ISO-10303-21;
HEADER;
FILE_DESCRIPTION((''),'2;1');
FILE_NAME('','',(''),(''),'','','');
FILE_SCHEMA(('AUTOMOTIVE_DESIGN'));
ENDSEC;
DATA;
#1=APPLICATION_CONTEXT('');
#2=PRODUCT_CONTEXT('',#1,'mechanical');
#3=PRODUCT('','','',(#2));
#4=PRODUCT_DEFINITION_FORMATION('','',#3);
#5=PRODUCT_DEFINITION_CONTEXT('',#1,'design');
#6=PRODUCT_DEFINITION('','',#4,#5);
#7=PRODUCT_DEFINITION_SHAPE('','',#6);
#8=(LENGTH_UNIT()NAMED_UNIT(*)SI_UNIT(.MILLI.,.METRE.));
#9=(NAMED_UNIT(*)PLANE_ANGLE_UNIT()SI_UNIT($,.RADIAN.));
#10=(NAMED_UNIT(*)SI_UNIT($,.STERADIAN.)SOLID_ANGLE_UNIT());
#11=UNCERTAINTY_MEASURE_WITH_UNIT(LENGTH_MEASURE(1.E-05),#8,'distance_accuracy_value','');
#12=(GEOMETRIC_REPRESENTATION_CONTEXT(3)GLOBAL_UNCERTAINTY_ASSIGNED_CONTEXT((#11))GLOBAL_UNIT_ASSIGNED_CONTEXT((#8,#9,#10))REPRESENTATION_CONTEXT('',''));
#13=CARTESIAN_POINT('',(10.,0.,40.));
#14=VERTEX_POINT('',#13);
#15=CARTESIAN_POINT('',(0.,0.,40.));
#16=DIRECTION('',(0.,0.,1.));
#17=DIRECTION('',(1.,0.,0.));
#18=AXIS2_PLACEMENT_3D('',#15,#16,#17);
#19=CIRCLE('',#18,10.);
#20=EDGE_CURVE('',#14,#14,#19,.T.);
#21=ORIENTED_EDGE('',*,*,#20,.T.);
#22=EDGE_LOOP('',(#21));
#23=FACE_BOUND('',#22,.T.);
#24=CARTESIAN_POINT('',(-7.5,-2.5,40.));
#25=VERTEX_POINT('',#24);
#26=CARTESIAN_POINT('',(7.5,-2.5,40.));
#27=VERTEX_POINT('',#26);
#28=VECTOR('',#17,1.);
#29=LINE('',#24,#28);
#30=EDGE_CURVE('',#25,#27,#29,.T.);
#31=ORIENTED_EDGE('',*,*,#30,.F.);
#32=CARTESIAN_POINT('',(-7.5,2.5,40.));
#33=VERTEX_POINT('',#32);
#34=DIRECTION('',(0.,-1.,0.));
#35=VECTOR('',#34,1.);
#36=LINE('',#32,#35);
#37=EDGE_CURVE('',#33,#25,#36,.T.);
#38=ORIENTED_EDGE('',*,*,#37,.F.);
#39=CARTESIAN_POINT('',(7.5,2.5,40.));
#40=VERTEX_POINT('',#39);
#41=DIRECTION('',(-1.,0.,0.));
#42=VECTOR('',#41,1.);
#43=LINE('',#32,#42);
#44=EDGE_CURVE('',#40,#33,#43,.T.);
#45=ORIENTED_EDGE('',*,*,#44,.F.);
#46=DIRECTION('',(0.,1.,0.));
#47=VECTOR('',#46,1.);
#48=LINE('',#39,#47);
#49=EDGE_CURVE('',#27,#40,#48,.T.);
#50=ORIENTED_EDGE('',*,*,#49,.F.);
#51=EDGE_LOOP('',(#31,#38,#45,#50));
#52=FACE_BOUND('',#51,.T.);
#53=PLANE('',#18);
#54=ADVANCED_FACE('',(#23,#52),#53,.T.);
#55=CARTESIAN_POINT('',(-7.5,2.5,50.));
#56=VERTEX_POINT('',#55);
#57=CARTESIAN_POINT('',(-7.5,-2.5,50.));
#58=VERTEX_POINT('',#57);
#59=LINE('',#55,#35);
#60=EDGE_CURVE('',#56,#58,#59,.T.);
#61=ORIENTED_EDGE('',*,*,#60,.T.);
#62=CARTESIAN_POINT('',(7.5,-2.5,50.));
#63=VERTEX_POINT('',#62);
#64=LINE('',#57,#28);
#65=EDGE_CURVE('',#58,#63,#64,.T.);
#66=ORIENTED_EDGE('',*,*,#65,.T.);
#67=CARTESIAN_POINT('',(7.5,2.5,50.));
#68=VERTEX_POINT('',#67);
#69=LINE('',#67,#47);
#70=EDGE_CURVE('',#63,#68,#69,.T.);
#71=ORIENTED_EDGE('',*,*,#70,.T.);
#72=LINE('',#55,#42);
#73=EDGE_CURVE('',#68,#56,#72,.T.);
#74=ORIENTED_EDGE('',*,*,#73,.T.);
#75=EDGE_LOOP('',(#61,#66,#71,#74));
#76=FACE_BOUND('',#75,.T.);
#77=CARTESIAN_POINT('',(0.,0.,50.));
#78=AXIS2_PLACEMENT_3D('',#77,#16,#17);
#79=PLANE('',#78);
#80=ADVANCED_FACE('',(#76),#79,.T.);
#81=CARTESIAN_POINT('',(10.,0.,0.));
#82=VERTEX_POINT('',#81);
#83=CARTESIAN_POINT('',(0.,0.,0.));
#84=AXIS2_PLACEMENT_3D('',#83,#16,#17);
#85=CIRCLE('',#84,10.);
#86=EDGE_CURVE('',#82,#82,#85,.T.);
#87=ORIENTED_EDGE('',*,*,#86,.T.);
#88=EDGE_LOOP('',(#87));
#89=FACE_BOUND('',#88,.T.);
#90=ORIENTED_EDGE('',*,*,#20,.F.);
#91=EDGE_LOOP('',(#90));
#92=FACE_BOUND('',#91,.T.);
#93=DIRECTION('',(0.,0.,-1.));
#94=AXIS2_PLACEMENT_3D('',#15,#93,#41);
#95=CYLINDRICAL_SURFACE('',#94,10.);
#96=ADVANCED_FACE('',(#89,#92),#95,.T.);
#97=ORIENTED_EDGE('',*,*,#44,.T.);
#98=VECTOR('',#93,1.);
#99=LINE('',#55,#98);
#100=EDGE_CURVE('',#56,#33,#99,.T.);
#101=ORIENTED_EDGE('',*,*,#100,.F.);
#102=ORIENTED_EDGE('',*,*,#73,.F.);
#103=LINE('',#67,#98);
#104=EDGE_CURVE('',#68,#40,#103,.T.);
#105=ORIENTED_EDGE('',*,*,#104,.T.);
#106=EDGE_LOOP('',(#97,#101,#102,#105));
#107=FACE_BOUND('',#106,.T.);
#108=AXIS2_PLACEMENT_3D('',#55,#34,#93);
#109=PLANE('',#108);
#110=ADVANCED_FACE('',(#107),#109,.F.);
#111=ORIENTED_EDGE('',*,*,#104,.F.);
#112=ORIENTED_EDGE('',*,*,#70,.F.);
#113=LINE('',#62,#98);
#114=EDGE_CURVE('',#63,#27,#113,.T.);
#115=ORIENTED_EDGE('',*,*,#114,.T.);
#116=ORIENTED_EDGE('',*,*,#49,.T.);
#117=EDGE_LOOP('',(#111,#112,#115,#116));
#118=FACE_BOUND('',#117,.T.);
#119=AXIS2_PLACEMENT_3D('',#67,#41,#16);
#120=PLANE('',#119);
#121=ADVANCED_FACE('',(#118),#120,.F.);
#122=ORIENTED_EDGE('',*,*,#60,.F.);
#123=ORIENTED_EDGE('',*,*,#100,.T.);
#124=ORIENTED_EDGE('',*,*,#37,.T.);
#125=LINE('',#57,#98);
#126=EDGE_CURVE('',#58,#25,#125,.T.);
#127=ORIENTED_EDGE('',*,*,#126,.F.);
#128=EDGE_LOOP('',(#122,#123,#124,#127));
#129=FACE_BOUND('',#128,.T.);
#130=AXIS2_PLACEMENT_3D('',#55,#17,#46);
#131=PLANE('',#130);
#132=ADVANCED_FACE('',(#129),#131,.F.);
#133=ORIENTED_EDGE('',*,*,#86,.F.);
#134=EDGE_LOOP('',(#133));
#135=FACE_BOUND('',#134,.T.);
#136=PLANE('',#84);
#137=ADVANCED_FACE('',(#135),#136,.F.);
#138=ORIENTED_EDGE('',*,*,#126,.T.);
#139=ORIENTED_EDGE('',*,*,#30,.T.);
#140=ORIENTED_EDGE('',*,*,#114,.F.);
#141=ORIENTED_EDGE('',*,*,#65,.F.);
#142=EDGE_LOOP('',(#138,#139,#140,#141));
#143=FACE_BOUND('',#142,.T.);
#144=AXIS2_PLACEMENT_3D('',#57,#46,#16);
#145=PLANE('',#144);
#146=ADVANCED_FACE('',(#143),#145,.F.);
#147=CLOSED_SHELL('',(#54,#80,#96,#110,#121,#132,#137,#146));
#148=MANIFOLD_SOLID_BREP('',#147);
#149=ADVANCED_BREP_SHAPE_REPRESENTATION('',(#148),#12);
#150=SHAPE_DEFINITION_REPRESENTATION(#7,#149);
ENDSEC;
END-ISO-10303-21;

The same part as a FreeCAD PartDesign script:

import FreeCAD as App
import Part
import Sketcher
from FreeCAD import Vector
Q = App.Units.Quantity


def add_polygon(sketch, points):
    """Adds a closed chain of lines whose ends are joined by coincident constraints."""
    first, n = sketch.GeometryCount, len(points)
    for a, b in zip(points, points[1:] + points[:1]):
        sketch.addGeometry(Part.LineSegment(App.Vector(*a, 0), App.Vector(*b, 0)), False)
    for i in range(n):
        sketch.addConstraint(Sketcher.Constraint("Coincident", first + i, 2, first + (i + 1) % n, 1))

doc = App.newDocument("Part")
body = doc.addObject("PartDesign::Body", "Body")

sketch1 = body.newObject("Sketcher::SketchObject", "Sketch")
sketch1.AttachmentSupport = (doc.getObject("XY_Plane"), [""])
sketch1.MapMode = "FlatFace"
sketch1.addGeometry(Part.Circle(Vector(0, 0, 0), Vector(0, 0, 1), 10), False)
sketch1.addConstraint([
    Sketcher.Constraint("Coincident", 0, 3, -1, 1),
    Sketcher.Constraint("Diameter", 0, Q("20 mm")),
])
pad1 = body.newObject("PartDesign::Pad", "Pad")
pad1.Profile = sketch1
pad1.Length = 40

sketch2 = body.newObject("Sketcher::SketchObject", "Sketch001")
sketch2.AttachmentSupport = (doc.getObject("XY_Plane"), [""])
sketch2.MapMode = "FlatFace"
sketch2.AttachmentOffset = App.Placement(Vector(0, 0, 40), App.Rotation())
add_polygon(sketch2, [(-7.5, 2.5), (-7.5, -2.5), (7.5, -2.5), (7.5, 2.5)])
sketch2.addConstraint([
    Sketcher.Constraint("Vertical", 0),
    Sketcher.Constraint("Horizontal", 1),
    Sketcher.Constraint("Vertical", 2),
    Sketcher.Constraint("Horizontal", 3),
    Sketcher.Constraint("Symmetric", 0, 2, 2, 2, -1, 1),
    Sketcher.Constraint("DistanceX", 1, 1, 1, 2, Q("15 mm")),
    Sketcher.Constraint("DistanceY", 0, 2, 0, 1, Q("5 mm")),
])
pad2 = body.newObject("PartDesign::Pad", "Pad001")
pad2.Profile = sketch2
pad2.Length = 10

doc.recompute()
